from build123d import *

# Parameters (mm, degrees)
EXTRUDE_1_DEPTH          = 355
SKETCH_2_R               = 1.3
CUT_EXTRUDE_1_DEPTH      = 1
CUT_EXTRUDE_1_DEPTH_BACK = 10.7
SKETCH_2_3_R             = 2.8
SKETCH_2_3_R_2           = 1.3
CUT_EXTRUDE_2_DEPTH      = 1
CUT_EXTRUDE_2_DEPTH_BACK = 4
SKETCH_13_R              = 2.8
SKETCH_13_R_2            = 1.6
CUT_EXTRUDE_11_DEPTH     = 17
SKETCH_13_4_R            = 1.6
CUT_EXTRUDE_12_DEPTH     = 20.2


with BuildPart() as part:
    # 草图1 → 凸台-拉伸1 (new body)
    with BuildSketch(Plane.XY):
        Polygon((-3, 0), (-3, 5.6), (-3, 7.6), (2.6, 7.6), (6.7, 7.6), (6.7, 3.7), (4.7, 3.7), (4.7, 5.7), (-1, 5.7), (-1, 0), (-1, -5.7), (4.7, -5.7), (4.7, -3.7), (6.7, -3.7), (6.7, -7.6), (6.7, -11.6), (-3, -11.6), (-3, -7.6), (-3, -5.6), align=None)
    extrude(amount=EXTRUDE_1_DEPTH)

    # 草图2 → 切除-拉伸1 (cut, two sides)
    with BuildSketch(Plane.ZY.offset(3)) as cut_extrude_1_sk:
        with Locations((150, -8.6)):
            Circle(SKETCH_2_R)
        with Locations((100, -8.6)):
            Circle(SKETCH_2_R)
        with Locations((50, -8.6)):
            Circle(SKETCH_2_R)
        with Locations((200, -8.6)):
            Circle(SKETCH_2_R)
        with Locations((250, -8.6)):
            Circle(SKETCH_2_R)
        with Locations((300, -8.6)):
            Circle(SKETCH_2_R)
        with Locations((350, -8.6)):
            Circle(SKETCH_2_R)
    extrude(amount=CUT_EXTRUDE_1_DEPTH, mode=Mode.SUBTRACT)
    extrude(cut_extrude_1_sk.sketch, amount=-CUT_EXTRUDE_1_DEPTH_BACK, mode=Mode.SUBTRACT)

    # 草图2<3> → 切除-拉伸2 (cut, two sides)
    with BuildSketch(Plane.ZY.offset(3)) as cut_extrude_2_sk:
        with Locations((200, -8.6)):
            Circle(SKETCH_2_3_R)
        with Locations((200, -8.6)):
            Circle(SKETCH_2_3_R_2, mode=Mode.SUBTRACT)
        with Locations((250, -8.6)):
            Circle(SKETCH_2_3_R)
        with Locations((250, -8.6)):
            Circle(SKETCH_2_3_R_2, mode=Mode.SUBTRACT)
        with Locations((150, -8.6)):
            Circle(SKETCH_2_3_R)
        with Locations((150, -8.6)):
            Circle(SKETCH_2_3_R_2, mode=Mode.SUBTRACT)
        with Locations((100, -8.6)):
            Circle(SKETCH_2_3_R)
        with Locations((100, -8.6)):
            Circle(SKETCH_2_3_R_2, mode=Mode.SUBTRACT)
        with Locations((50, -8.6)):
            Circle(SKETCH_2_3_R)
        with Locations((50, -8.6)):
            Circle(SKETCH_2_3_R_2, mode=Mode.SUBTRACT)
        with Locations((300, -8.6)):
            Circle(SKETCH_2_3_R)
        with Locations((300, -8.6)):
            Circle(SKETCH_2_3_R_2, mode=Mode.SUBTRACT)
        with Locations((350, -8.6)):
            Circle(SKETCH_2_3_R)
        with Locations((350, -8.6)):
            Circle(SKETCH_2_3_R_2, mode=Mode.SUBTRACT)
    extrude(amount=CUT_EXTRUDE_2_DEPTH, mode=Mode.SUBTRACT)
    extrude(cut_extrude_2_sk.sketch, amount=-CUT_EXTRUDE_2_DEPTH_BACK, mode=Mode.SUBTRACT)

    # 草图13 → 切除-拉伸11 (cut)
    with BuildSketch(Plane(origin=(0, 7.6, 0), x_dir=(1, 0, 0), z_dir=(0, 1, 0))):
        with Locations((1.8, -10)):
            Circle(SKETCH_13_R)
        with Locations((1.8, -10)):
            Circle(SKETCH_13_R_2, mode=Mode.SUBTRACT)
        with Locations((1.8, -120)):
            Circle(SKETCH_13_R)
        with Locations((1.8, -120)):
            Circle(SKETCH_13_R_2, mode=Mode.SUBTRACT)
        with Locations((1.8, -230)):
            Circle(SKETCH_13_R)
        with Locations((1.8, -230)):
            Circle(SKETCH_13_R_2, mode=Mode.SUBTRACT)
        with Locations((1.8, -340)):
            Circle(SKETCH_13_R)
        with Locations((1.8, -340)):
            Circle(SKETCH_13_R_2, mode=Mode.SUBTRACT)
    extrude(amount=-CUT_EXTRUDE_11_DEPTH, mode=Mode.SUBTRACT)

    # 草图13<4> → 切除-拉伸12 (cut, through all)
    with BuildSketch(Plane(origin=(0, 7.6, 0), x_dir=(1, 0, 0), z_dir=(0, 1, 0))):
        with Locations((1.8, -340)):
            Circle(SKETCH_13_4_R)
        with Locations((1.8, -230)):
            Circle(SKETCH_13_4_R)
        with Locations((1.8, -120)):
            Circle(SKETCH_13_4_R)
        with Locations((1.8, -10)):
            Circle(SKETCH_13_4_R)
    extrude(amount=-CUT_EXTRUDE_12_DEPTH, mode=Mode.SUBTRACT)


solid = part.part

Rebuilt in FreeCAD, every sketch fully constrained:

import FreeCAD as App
import Part
import Sketcher


def add_polygon(sketch, points):
    """Adds a closed chain of lines whose ends are joined by coincident constraints."""
    first, n = sketch.GeometryCount, len(points)
    for a, b in zip(points, points[1:] + points[:1]):
        sketch.addGeometry(Part.LineSegment(App.Vector(*a, 0), App.Vector(*b, 0)), False)
    for i in range(n):
        sketch.addConstraint(Sketcher.Constraint("Coincident", first + i, 2, first + (i + 1) % n, 1))

doc = App.newDocument("Part")
params = doc.addObject("Spreadsheet::Sheet", "Params")
for row, (alias, value) in enumerate([
    ("sketch1_width", "2 mm"),
    ("sketch1_width2", "9.7 mm"),
    ("sketch1_width3", "5.7 mm"),
    ("sketch1_height", "19.2 mm"),
    ("sketch1_height2", "7.9 mm"),
    ("pad1_length", "355 mm"),
    ("sketch2_diameter", "2.6 mm"),
    ("sketch3_diameter", "5.6 mm"),
    ("sketch3_diameter2", "2.6 mm"),
    ("pocket2_length", "1 mm"),
    ("pocket2_length2", "4 mm"),
    ("sketch4_diameter", "5.6 mm"),
    ("sketch4_diameter2", "3.2 mm"),
    ("pocket3_length", "17 mm"),
    ("sketch5_diameter", "3.2 mm"),
], start=1):
    params.set(f"A{row}", alias)
    params.set(f"B{row}", "=" + value)
    params.setAlias(f"B{row}", alias)

body = doc.addObject("PartDesign::Body", "Body")
body.AllowCompound = True

# Sketch on XY plane
sketch1 = body.newObject("Sketcher::SketchObject", "Sketch")
sketch1.AttachmentSupport = (doc.getObject("XY_Plane"), [""])
sketch1.MapMode = "FlatFace"
add_polygon(sketch1, [(-3, 7.6), (-3, -11.6), (6.7, -11.6), (6.7, -3.7), (4.7, -3.7), (4.7, -5.7), (-1, -5.7), (-1, 5.7), (4.7, 5.7), (4.7, 3.7), (6.7, 3.7), (6.7, 7.6)])  # lines 0-11
sketch1.addConstraint(Sketcher.Constraint("Vertical", 0))
sketch1.addConstraint(Sketcher.Constraint("Horizontal", 1))
sketch1.addConstraint(Sketcher.Constraint("Vertical", 2))
sketch1.addConstraint(Sketcher.Constraint("Horizontal", 3))
sketch1.addConstraint(Sketcher.Constraint("Vertical", 4))
sketch1.addConstraint(Sketcher.Constraint("Horizontal", 5))
sketch1.addConstraint(Sketcher.Constraint("Vertical", 6))
sketch1.addConstraint(Sketcher.Constraint("Horizontal", 7))
sketch1.addConstraint(Sketcher.Constraint("Vertical", 8))
sketch1.addConstraint(Sketcher.Constraint("Horizontal", 9))
sketch1.addConstraint(Sketcher.Constraint("Vertical", 10))
sketch1.addConstraint(Sketcher.Constraint("Horizontal", 11))
sketch1.addConstraint(Sketcher.Constraint("Symmetric", 4, 2, 7, 2, -1))
sketch1.addConstraint(Sketcher.Constraint("Symmetric", 2, 2, 9, 2, -1))
sketch1.addConstraint(Sketcher.Constraint("Equal", 9, 4))
sketch1.addConstraint(Sketcher.Constraint("DistanceX", 3, 2, 3, 1, 2.0))
sketch1.addConstraint(Sketcher.Constraint("DistanceX", 1, 1, 1, 2, 9.7))
sketch1.addConstraint(Sketcher.Constraint("DistanceX", 5, 2, 5, 1, 5.7))
sketch1.addConstraint(Sketcher.Constraint("DistanceY", 0, 2, 0, 1, 19.2))
sketch1.addConstraint(Sketcher.Constraint("DistanceY", 2, 1, 2, 2, 7.9))
sketch1.addConstraint(Sketcher.Constraint("DistanceY", 6, 1, 6, 2, 11.4))
sketch1.addConstraint(Sketcher.Constraint("DistanceX", 0, 2, -1, 1, 3.0))
sketch1.setExpression("Constraints[27]", "Params.sketch1_width")
sketch1.setExpression("Constraints[28]", "Params.sketch1_width2")
sketch1.setExpression("Constraints[29]", "Params.sketch1_width3")
sketch1.setExpression("Constraints[30]", "Params.sketch1_height")
sketch1.setExpression("Constraints[31]", "Params.sketch1_height2")
pad1 = body.newObject("PartDesign::Pad", "Pad")
pad1.Profile = sketch1
pad1.setExpression("Length", "Params.pad1_length")

# Sketch on YZ plane
sketch2 = body.newObject("Sketcher::SketchObject", "Sketch001")
sketch2.AttachmentSupport = (doc.getObject("YZ_Plane"), [""])
sketch2.MapMode = "FlatFace"
sketch2.AttachmentOffset = App.Placement(App.Vector(0, 0, -3), App.Rotation())
sketch2.addGeometry(Part.Circle(App.Vector(-8.6, 150, 0), App.Vector(0, 0, 1), 1.3), False)
sketch2.addGeometry(Part.Circle(App.Vector(-8.6, 100, 0), App.Vector(0, 0, 1), 1.3), False)
sketch2.addGeometry(Part.Circle(App.Vector(-8.6, 50, 0), App.Vector(0, 0, 1), 1.3), False)
sketch2.addGeometry(Part.Circle(App.Vector(-8.6, 200, 0), App.Vector(0, 0, 1), 1.3), False)
sketch2.addGeometry(Part.Circle(App.Vector(-8.6, 250, 0), App.Vector(0, 0, 1), 1.3), False)
sketch2.addGeometry(Part.Circle(App.Vector(-8.6, 300, 0), App.Vector(0, 0, 1), 1.3), False)
sketch2.addGeometry(Part.Circle(App.Vector(-8.6, 350, 0), App.Vector(0, 0, 1), 1.3), False)
sketch2.addConstraint(Sketcher.Constraint("Equal", 0, 1))
sketch2.addConstraint(Sketcher.Constraint("Equal", 1, 2))
sketch2.addConstraint(Sketcher.Constraint("Equal", 2, 3))
sketch2.addConstraint(Sketcher.Constraint("Equal", 3, 4))
sketch2.addConstraint(Sketcher.Constraint("Equal", 4, 5))
sketch2.addConstraint(Sketcher.Constraint("Equal", 5, 6))
sketch2.addConstraint(Sketcher.Constraint("Vertical", 0, 3, 1, 3))
sketch2.addConstraint(Sketcher.Constraint("Vertical", 1, 3, 2, 3))
sketch2.addConstraint(Sketcher.Constraint("Vertical", 2, 3, 3, 3))
sketch2.addConstraint(Sketcher.Constraint("Vertical", 3, 3, 4, 3))
sketch2.addConstraint(Sketcher.Constraint("Vertical", 4, 3, 5, 3))
sketch2.addConstraint(Sketcher.Constraint("Vertical", 5, 3, 6, 3))
sketch2.addConstraint(Sketcher.Constraint("Diameter", 0, 2.6))
sketch2.addConstraint(Sketcher.Constraint("DistanceY", -1, 1, 0, 3, 150.0))
sketch2.addConstraint(Sketcher.Constraint("DistanceY", -1, 1, 1, 3, 100.0))
sketch2.addConstraint(Sketcher.Constraint("DistanceY", -1, 1, 2, 3, 50.0))
sketch2.addConstraint(Sketcher.Constraint("DistanceY", -1, 1, 3, 3, 200.0))
sketch2.addConstraint(Sketcher.Constraint("DistanceY", -1, 1, 4, 3, 250.0))
sketch2.addConstraint(Sketcher.Constraint("DistanceY", -1, 1, 5, 3, 300.0))
sketch2.addConstraint(Sketcher.Constraint("DistanceY", -1, 1, 6, 3, 350.0))
sketch2.addConstraint(Sketcher.Constraint("DistanceX", 0, 3, -1, 1, 8.6))
sketch2.setExpression("Constraints[12]", "Params.sketch2_diameter")
pocket1 = body.newObject("PartDesign::Pocket", "Pocket")
pocket1.Profile = sketch2
pocket1.Type = "ThroughAll"
pocket1.Midplane = True

# Sketch on YZ plane
sketch3 = body.newObject("Sketcher::SketchObject", "Sketch002")
sketch3.AttachmentSupport = (doc.getObject("YZ_Plane"), [""])
sketch3.MapMode = "FlatFace"
sketch3.AttachmentOffset = App.Placement(App.Vector(0, 0, -3), App.Rotation())
sketch3.addGeometry(Part.Circle(App.Vector(-8.6, 200, 0), App.Vector(0, 0, 1), 2.8), False)
sketch3.addGeometry(Part.Circle(App.Vector(-8.6, 200, 0), App.Vector(0, 0, 1), 1.3), False)
sketch3.addGeometry(Part.Circle(App.Vector(-8.6, 250, 0), App.Vector(0, 0, 1), 2.8), False)
sketch3.addGeometry(Part.Circle(App.Vector(-8.6, 250, 0), App.Vector(0, 0, 1), 1.3), False)
sketch3.addGeometry(Part.Circle(App.Vector(-8.6, 150, 0), App.Vector(0, 0, 1), 2.8), False)
sketch3.addGeometry(Part.Circle(App.Vector(-8.6, 150, 0), App.Vector(0, 0, 1), 1.3), False)
sketch3.addGeometry(Part.Circle(App.Vector(-8.6, 100, 0), App.Vector(0, 0, 1), 2.8), False)
sketch3.addGeometry(Part.Circle(App.Vector(-8.6, 100, 0), App.Vector(0, 0, 1), 1.3), False)
sketch3.addGeometry(Part.Circle(App.Vector(-8.6, 50, 0), App.Vector(0, 0, 1), 2.8), False)
sketch3.addGeometry(Part.Circle(App.Vector(-8.6, 50, 0), App.Vector(0, 0, 1), 1.3), False)
sketch3.addGeometry(Part.Circle(App.Vector(-8.6, 300, 0), App.Vector(0, 0, 1), 2.8), False)
sketch3.addGeometry(Part.Circle(App.Vector(-8.6, 300, 0), App.Vector(0, 0, 1), 1.3), False)
sketch3.addGeometry(Part.Circle(App.Vector(-8.6, 350, 0), App.Vector(0, 0, 1), 2.8), False)
sketch3.addGeometry(Part.Circle(App.Vector(-8.6, 350, 0), App.Vector(0, 0, 1), 1.3), False)
sketch3.addConstraint(Sketcher.Constraint("Coincident", 1, 3, 0, 3))
sketch3.addConstraint(Sketcher.Constraint("Coincident", 3, 3, 2, 3))
sketch3.addConstraint(Sketcher.Constraint("Coincident", 5, 3, 4, 3))
sketch3.addConstraint(Sketcher.Constraint("Coincident", 7, 3, 6, 3))
sketch3.addConstraint(Sketcher.Constraint("Coincident", 9, 3, 8, 3))
sketch3.addConstraint(Sketcher.Constraint("Coincident", 11, 3, 10, 3))
sketch3.addConstraint(Sketcher.Constraint("Coincident", 13, 3, 12, 3))
sketch3.addConstraint(Sketcher.Constraint("Equal", 0, 2))
sketch3.addConstraint(Sketcher.Constraint("Equal", 1, 3))
sketch3.addConstraint(Sketcher.Constraint("Equal", 2, 4))
sketch3.addConstraint(Sketcher.Constraint("Equal", 3, 5))
sketch3.addConstraint(Sketcher.Constraint("Equal", 4, 6))
sketch3.addConstraint(Sketcher.Constraint("Equal", 5, 7))
sketch3.addConstraint(Sketcher.Constraint("Equal", 6, 8))
sketch3.addConstraint(Sketcher.Constraint("Equal", 7, 9))
sketch3.addConstraint(Sketcher.Constraint("Equal", 8, 10))
sketch3.addConstraint(Sketcher.Constraint("Equal", 9, 11))
sketch3.addConstraint(Sketcher.Constraint("Equal", 10, 12))
sketch3.addConstraint(Sketcher.Constraint("Equal", 11, 13))
sketch3.addConstraint(Sketcher.Constraint("Vertical", 1, 3, 2, 3))
sketch3.addConstraint(Sketcher.Constraint("Vertical", 3, 3, 4, 3))
sketch3.addConstraint(Sketcher.Constraint("Vertical", 5, 3, 6, 3))
sketch3.addConstraint(Sketcher.Constraint("Vertical", 7, 3, 8, 3))
sketch3.addConstraint(Sketcher.Constraint("Vertical", 9, 3, 10, 3))
sketch3.addConstraint(Sketcher.Constraint("Vertical", 11, 3, 12, 3))
sketch3.addConstraint(Sketcher.Constraint("Diameter", 0, 5.6))
sketch3.addConstraint(Sketcher.Constraint("Diameter", 1, 2.6))
sketch3.addConstraint(Sketcher.Constraint("DistanceY", -1, 1, 0, 3, 200.0))
sketch3.addConstraint(Sketcher.Constraint("DistanceY", -1, 1, 2, 3, 250.0))
sketch3.addConstraint(Sketcher.Constraint("DistanceY", -1, 1, 4, 3, 150.0))
sketch3.addConstraint(Sketcher.Constraint("DistanceY", -1, 1, 6, 3, 100.0))
sketch3.addConstraint(Sketcher.Constraint("DistanceY", -1, 1, 8, 3, 50.0))
sketch3.addConstraint(Sketcher.Constraint("DistanceY", -1, 1, 10, 3, 300.0))
sketch3.addConstraint(Sketcher.Constraint("DistanceY", -1, 1, 12, 3, 350.0))
sketch3.addConstraint(Sketcher.Constraint("DistanceX", 0, 3, -1, 1, 8.6))
sketch3.setExpression("Constraints[25]", "Params.sketch3_diameter")
sketch3.setExpression("Constraints[26]", "Params.sketch3_diameter2")
pocket2 = body.newObject("PartDesign::Pocket", "Pocket001")
pocket2.Profile = sketch3
pocket2.Type = "TwoLengths"
pocket2.setExpression("Length", "Params.pocket2_length")
pocket2.setExpression("Length2", "Params.pocket2_length2")

# Sketch on XZ plane
sketch4 = body.newObject("Sketcher::SketchObject", "Sketch003")
sketch4.AttachmentSupport = (doc.getObject("XZ_Plane"), [""])
sketch4.MapMode = "FlatFace"
sketch4.AttachmentOffset = App.Placement(App.Vector(0, 0, -7.6), App.Rotation())
sketch4.addGeometry(Part.Circle(App.Vector(1.8, 10, 0), App.Vector(0, 0, 1), 2.8), False)
sketch4.addGeometry(Part.Circle(App.Vector(1.8, 10, 0), App.Vector(0, 0, 1), 1.6), False)
sketch4.addGeometry(Part.Circle(App.Vector(1.8, 120, 0), App.Vector(0, 0, 1), 2.8), False)
sketch4.addGeometry(Part.Circle(App.Vector(1.8, 120, 0), App.Vector(0, 0, 1), 1.6), False)
sketch4.addGeometry(Part.Circle(App.Vector(1.8, 230, 0), App.Vector(0, 0, 1), 2.8), False)
sketch4.addGeometry(Part.Circle(App.Vector(1.8, 230, 0), App.Vector(0, 0, 1), 1.6), False)
sketch4.addGeometry(Part.Circle(App.Vector(1.8, 340, 0), App.Vector(0, 0, 1), 2.8), False)
sketch4.addGeometry(Part.Circle(App.Vector(1.8, 340, 0), App.Vector(0, 0, 1), 1.6), False)
sketch4.addConstraint(Sketcher.Constraint("Coincident", 1, 3, 0, 3))
sketch4.addConstraint(Sketcher.Constraint("Coincident", 3, 3, 2, 3))
sketch4.addConstraint(Sketcher.Constraint("Coincident", 5, 3, 4, 3))
sketch4.addConstraint(Sketcher.Constraint("Coincident", 7, 3, 6, 3))
sketch4.addConstraint(Sketcher.Constraint("Equal", 0, 2))
sketch4.addConstraint(Sketcher.Constraint("Equal", 1, 3))
sketch4.addConstraint(Sketcher.Constraint("Equal", 2, 4))
sketch4.addConstraint(Sketcher.Constraint("Equal", 3, 5))
sketch4.addConstraint(Sketcher.Constraint("Equal", 4, 6))
sketch4.addConstraint(Sketcher.Constraint("Equal", 5, 7))
sketch4.addConstraint(Sketcher.Constraint("Vertical", 1, 3, 2, 3))
sketch4.addConstraint(Sketcher.Constraint("Vertical", 3, 3, 4, 3))
sketch4.addConstraint(Sketcher.Constraint("Vertical", 5, 3, 6, 3))
sketch4.addConstraint(Sketcher.Constraint("Diameter", 0, 5.6))
sketch4.addConstraint(Sketcher.Constraint("Diameter", 1, 3.2))
sketch4.addConstraint(Sketcher.Constraint("DistanceY", -1, 1, 0, 3, 10.0))
sketch4.addConstraint(Sketcher.Constraint("DistanceY", -1, 1, 2, 3, 120.0))
sketch4.addConstraint(Sketcher.Constraint("DistanceY", -1, 1, 4, 3, 230.0))
sketch4.addConstraint(Sketcher.Constraint("DistanceY", -1, 1, 6, 3, 340.0))
sketch4.addConstraint(Sketcher.Constraint("DistanceX", -1, 1, 0, 3, 1.8))
sketch4.setExpression("Constraints[13]", "Params.sketch4_diameter")
sketch4.setExpression("Constraints[14]", "Params.sketch4_diameter2")
pocket3 = body.newObject("PartDesign::Pocket", "Pocket002")
pocket3.Profile = sketch4
pocket3.setExpression("Length", "Params.pocket3_length")
pocket3.Reversed = True

# Sketch on XZ plane
sketch5 = body.newObject("Sketcher::SketchObject", "Sketch004")
sketch5.AttachmentSupport = (doc.getObject("XZ_Plane"), [""])
sketch5.MapMode = "FlatFace"
sketch5.AttachmentOffset = App.Placement(App.Vector(0, 0, -7.6), App.Rotation())
sketch5.addGeometry(Part.Circle(App.Vector(1.8, 340, 0), App.Vector(0, 0, 1), 1.6), False)
sketch5.addGeometry(Part.Circle(App.Vector(1.8, 230, 0), App.Vector(0, 0, 1), 1.6), False)
sketch5.addGeometry(Part.Circle(App.Vector(1.8, 120, 0), App.Vector(0, 0, 1), 1.6), False)
sketch5.addGeometry(Part.Circle(App.Vector(1.8, 10, 0), App.Vector(0, 0, 1), 1.6), False)
sketch5.addConstraint(Sketcher.Constraint("Equal", 0, 1))
sketch5.addConstraint(Sketcher.Constraint("Equal", 1, 2))
sketch5.addConstraint(Sketcher.Constraint("Equal", 2, 3))
sketch5.addConstraint(Sketcher.Constraint("Vertical", 0, 3, 1, 3))
sketch5.addConstraint(Sketcher.Constraint("Vertical", 1, 3, 2, 3))
sketch5.addConstraint(Sketcher.Constraint("Vertical", 2, 3, 3, 3))
sketch5.addConstraint(Sketcher.Constraint("Diameter", 0, 3.2))
sketch5.addConstraint(Sketcher.Constraint("DistanceY", -1, 1, 0, 3, 340.0))
sketch5.addConstraint(Sketcher.Constraint("DistanceY", -1, 1, 1, 3, 230.0))
sketch5.addConstraint(Sketcher.Constraint("DistanceY", -1, 1, 2, 3, 120.0))
sketch5.addConstraint(Sketcher.Constraint("DistanceY", -1, 1, 3, 3, 10.0))
sketch5.addConstraint(Sketcher.Constraint("DistanceX", -1, 1, 0, 3, 1.8))
sketch5.setExpression("Constraints[6]", "Params.sketch5_diameter")
pocket4 = body.newObject("PartDesign::Pocket", "Pocket003")
pocket4.Profile = sketch5
pocket4.Type = "ThroughAll"
pocket4.Reversed = True

doc.recompute()
